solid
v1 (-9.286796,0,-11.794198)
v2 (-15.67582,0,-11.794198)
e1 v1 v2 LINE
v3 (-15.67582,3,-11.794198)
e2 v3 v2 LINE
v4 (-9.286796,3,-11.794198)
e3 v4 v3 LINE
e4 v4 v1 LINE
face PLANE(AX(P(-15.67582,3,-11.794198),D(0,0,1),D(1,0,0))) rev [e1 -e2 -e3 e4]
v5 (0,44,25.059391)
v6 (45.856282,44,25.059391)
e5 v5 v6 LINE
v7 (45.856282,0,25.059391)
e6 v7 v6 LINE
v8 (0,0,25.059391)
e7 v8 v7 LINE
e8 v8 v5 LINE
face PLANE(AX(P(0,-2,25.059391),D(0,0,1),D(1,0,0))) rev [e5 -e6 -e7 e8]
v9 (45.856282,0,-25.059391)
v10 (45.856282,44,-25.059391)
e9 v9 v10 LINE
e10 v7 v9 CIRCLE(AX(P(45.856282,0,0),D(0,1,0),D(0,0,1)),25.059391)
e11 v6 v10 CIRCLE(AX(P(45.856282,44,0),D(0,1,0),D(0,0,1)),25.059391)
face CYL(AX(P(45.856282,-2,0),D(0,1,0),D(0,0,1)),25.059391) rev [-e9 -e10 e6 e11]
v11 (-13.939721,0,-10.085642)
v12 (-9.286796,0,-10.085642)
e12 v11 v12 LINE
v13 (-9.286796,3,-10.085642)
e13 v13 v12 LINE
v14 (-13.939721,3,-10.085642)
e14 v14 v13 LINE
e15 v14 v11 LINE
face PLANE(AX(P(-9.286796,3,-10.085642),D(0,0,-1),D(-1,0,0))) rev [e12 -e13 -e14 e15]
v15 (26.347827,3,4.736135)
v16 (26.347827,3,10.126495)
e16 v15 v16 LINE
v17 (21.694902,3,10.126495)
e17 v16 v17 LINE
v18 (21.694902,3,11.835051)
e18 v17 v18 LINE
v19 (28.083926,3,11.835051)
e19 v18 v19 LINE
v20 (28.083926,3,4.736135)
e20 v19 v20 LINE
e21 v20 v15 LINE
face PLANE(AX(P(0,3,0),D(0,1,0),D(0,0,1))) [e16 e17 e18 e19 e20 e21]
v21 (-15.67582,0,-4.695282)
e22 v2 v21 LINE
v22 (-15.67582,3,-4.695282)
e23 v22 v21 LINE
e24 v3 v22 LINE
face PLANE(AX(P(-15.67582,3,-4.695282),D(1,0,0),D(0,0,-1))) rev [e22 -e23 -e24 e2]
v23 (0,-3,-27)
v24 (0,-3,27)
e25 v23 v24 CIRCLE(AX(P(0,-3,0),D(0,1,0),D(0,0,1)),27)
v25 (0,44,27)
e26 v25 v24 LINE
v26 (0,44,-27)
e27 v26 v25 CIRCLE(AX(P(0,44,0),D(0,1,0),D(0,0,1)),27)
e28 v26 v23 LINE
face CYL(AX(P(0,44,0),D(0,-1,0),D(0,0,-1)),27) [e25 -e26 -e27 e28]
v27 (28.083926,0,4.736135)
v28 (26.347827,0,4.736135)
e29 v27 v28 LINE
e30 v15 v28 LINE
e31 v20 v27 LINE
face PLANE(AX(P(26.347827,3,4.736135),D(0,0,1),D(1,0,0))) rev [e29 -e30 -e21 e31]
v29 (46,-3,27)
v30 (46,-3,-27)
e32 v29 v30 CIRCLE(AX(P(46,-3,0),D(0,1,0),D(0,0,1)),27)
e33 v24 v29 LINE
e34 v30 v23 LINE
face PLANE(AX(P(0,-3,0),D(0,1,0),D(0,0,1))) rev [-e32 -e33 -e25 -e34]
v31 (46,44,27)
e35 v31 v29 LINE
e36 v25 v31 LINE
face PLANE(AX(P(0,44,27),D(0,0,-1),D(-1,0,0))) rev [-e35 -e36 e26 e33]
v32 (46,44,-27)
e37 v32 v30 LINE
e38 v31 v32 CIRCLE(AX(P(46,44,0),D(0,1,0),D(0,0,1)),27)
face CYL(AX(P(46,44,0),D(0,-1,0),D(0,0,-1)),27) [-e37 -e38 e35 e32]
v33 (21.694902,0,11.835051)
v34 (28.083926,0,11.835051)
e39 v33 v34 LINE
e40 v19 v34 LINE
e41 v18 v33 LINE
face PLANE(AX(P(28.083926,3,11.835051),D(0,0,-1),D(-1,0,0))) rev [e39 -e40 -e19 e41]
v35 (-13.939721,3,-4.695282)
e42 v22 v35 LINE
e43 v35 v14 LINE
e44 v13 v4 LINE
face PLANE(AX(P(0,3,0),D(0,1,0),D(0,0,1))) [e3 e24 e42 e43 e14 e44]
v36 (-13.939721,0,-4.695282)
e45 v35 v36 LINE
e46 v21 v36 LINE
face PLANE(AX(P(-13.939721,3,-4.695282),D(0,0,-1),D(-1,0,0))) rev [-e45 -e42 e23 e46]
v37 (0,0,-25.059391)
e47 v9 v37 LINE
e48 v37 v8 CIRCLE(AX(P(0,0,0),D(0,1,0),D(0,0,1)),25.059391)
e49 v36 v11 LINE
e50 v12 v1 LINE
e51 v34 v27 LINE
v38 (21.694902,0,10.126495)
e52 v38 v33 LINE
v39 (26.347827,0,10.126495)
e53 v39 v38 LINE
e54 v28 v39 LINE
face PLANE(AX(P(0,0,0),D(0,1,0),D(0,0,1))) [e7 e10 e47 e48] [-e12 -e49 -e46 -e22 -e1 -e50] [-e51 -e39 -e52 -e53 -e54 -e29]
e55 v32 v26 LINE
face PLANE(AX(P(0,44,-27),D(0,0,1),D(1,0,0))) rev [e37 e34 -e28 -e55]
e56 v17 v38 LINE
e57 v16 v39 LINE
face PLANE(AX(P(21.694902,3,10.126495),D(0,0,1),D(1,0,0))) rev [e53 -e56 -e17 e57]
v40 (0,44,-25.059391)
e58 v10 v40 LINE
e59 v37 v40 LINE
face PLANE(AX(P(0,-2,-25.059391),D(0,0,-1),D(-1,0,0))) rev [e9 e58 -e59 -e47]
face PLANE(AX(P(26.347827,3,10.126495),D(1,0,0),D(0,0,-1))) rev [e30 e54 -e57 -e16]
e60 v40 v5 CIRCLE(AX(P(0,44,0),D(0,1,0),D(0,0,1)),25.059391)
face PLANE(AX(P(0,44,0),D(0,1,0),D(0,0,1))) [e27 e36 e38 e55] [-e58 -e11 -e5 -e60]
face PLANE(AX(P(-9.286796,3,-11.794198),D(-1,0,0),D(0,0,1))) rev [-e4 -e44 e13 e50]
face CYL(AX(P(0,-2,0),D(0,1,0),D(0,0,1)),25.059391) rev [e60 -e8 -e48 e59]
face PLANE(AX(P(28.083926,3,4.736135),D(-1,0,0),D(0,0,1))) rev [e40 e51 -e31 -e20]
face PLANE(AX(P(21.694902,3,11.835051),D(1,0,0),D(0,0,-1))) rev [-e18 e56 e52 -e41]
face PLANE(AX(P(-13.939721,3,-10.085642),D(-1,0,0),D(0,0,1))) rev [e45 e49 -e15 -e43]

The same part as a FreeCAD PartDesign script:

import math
import FreeCAD as App
import Part
import Sketcher

V = App.Vector
Q = App.Units.Quantity

doc = App.newDocument("Part")
params = doc.addObject("Spreadsheet::Sheet", "Params")
for row, (alias, value) in enumerate([
    ("sketch1_radius", "27 mm"),
    ("sketch1_width", "46 mm"),
    ("pad1_length", "44 mm"),
    ("sketch3_radius", "27 mm"),
    ("sketch3_width", "46 mm"),
    ("pad2_length", "3 mm"),
    ("pad3_length", "3 mm"),
], start=1):
    params.set(f"A{row}", alias)
    params.set(f"B{row}", "=" + value)
    params.setAlias(f"B{row}", alias)

body = doc.addObject("PartDesign::Body", "Body")

sketch1 = body.newObject("Sketcher::SketchObject", "Sketch")
sketch1.AttachmentSupport = (doc.getObject("XZ_Plane"), [""])
sketch1.MapMode = "FlatFace"
sketch1.addGeometry([
    Part.LineSegment(V(46, -27, 0), V(0, -27, 0)),
    Part.ArcOfCircle(Part.Circle(V(0, 0, 0), V(0, 0, 1), 27), math.radians(90), math.radians(270)),
    Part.LineSegment(V(0, 27, 0), V(46, 27, 0)),
    Part.ArcOfCircle(Part.Circle(V(46, 0, 0), V(0, 0, 1), 27), math.radians(-90), math.radians(90)),
], False)
sketch1.addConstraint([
    Sketcher.Constraint("Tangent", 0, 2, 1, 2),
    Sketcher.Constraint("Tangent", 1, 1, 2, 1),
    Sketcher.Constraint("Tangent", 2, 2, 3, 2),
    Sketcher.Constraint("Tangent", 3, 1, 0, 1),
    Sketcher.Constraint("Horizontal", 0),
    Sketcher.Constraint("Horizontal", 2),
    Sketcher.Constraint("Coincident", 1, 3, -1, 1),
    Sketcher.Constraint("Radius", 1, Q("27 mm")),
    Sketcher.Constraint("DistanceX", 0, 2, 0, 1, Q("46 mm")),
])
sketch1.setExpression("Constraints[7]", "Params.sketch1_radius")
sketch1.setExpression("Constraints[8]", "Params.sketch1_width")
pad1 = body.newObject("PartDesign::Pad", "Pad")
pad1.Profile = sketch1
pad1.setExpression("Length", "Params.pad1_length")
pad1.Reversed = True

sketch2 = body.newObject("Sketcher::SketchObject", "Sketch001")
sketch2.AttachmentSupport = (doc.getObject("XZ_Plane"), [""])
sketch2.MapMode = "FlatFace"
sketch2.addGeometry([
    Part.LineSegment(V(46, -25, 0), V(0, -25, 0)),
    Part.ArcOfCircle(Part.Circle(V(0, 0, 0), V(0, 0, 1), 25), math.radians(90), math.radians(270)),
    Part.LineSegment(V(0, 25, 0), V(46, 25, 0)),
    Part.ArcOfCircle(Part.Circle(V(46, 0, 0), V(0, 0, 1), 25), math.radians(-90), math.radians(90)),
], False)
sketch2.addConstraint([
    Sketcher.Constraint("Tangent", 0, 2, 1, 2),
    Sketcher.Constraint("Tangent", 1, 1, 2, 1),
    Sketcher.Constraint("Tangent", 2, 2, 3, 2),
    Sketcher.Constraint("Tangent", 3, 1, 0, 1),
    Sketcher.Constraint("Horizontal", 0),
    Sketcher.Constraint("Horizontal", 2),
    Sketcher.Constraint("Coincident", 1, 3, -1, 1),
    Sketcher.Constraint("Radius", 1, Q("25.059391 mm")),
    Sketcher.Constraint("DistanceX", 0, 2, 0, 1, Q("45.856282 mm")),
])
pocket1 = body.newObject("PartDesign::Pocket", "Pocket")
pocket1.Profile = sketch2
pocket1.Type = "ThroughAll"
pocket1.Midplane = True

sketch3 = body.newObject("Sketcher::SketchObject", "Sketch002")
sketch3.AttachmentSupport = (doc.getObject("XZ_Plane"), [""])
sketch3.MapMode = "FlatFace"
sketch3.addGeometry([
    Part.LineSegment(V(46, -27, 0), V(0, -27, 0)),
    Part.ArcOfCircle(Part.Circle(V(0, 0, 0), V(0, 0, 1), 27), math.radians(90), math.radians(270)),
    Part.LineSegment(V(0, 27, 0), V(46, 27, 0)),
    Part.ArcOfCircle(Part.Circle(V(46, 0, 0), V(0, 0, 1), 27), math.radians(-90), math.radians(90)),
], False)
sketch3.addConstraint([
    Sketcher.Constraint("Tangent", 0, 2, 1, 2),
    Sketcher.Constraint("Tangent", 1, 1, 2, 1),
    Sketcher.Constraint("Tangent", 2, 2, 3, 2),
    Sketcher.Constraint("Tangent", 3, 1, 0, 1),
    Sketcher.Constraint("Horizontal", 0),
    Sketcher.Constraint("Horizontal", 2),
    Sketcher.Constraint("Coincident", 1, 3, -1, 1),
    Sketcher.Constraint("Radius", 1, Q("27 mm")),
    Sketcher.Constraint("DistanceX", 0, 2, 0, 1, Q("46 mm")),
])
sketch3.setExpression("Constraints[7]", "Params.sketch3_radius")
sketch3.setExpression("Constraints[8]", "Params.sketch3_width")
pad2 = body.newObject("PartDesign::Pad", "Pad001")
pad2.Profile = sketch3
pad2.setExpression("Length", "Params.pad2_length")

sketch4 = body.newObject("Sketcher::SketchObject", "Sketch003")
sketch4.AttachmentSupport = (doc.getObject("XZ_Plane"), [""])
sketch4.MapMode = "FlatFace"
sketch4.addGeometry([
    Part.LineSegment(V(-13.9, -4.7, 0), V(-13.9, -10.1, 0)),
    Part.LineSegment(V(-13.9, -10.1, 0), V(-9.3, -10.1, 0)),
    Part.LineSegment(V(-9.3, -10.1, 0), V(-9.3, -11.8, 0)),
    Part.LineSegment(V(-9.3, -11.8, 0), V(-15.7, -11.8, 0)),
    Part.LineSegment(V(-15.7, -11.8, 0), V(-15.7, -4.7, 0)),
    Part.LineSegment(V(-15.7, -4.7, 0), V(-13.9, -4.7, 0)),
    Part.LineSegment(V(26.3, 4.7, 0), V(26.3, 10.1, 0)),
    Part.LineSegment(V(26.3, 10.1, 0), V(21.7, 10.1, 0)),
    Part.LineSegment(V(21.7, 10.1, 0), V(21.7, 11.8, 0)),
    Part.LineSegment(V(21.7, 11.8, 0), V(28.1, 11.8, 0)),
    Part.LineSegment(V(28.1, 11.8, 0), V(28.1, 4.7, 0)),
    Part.LineSegment(V(28.1, 4.7, 0), V(26.3, 4.7, 0)),
], False)
sketch4.addConstraint([
    Sketcher.Constraint("Coincident", 0, 2, 1, 1),
    Sketcher.Constraint("Coincident", 1, 2, 2, 1),
    Sketcher.Constraint("Coincident", 2, 2, 3, 1),
    Sketcher.Constraint("Coincident", 3, 2, 4, 1),
    Sketcher.Constraint("Coincident", 4, 2, 5, 1),
    Sketcher.Constraint("Coincident", 5, 2, 0, 1),
    Sketcher.Constraint("Coincident", 6, 2, 7, 1),
    Sketcher.Constraint("Coincident", 7, 2, 8, 1),
    Sketcher.Constraint("Coincident", 8, 2, 9, 1),
    Sketcher.Constraint("Coincident", 9, 2, 10, 1),
    Sketcher.Constraint("Coincident", 10, 2, 11, 1),
    Sketcher.Constraint("Coincident", 11, 2, 6, 1),
    Sketcher.Constraint("Vertical", 0),
    Sketcher.Constraint("Horizontal", 1),
    Sketcher.Constraint("Vertical", 2),
    Sketcher.Constraint("Horizontal", 3),
    Sketcher.Constraint("Vertical", 4),
    Sketcher.Constraint("Horizontal", 5),
    Sketcher.Constraint("Vertical", 6),
    Sketcher.Constraint("Horizontal", 7),
    Sketcher.Constraint("Vertical", 8),
    Sketcher.Constraint("Horizontal", 9),
    Sketcher.Constraint("Vertical", 10),
    Sketcher.Constraint("Horizontal", 11),
    Sketcher.Constraint("Equal", 1, 7),
    Sketcher.Constraint("Equal", 3, 9),
    Sketcher.Constraint("Equal", 0, 6),
    Sketcher.Constraint("Equal", 2, 8),
    Sketcher.Constraint("DistanceX", 5, 1, 5, 2, Q("1.736099 mm")),
    Sketcher.Constraint("DistanceY", 0, 2, 0, 1, Q("5.39036 mm")),
    Sketcher.Constraint("DistanceX", -1, 1, 7, 2, Q("21.694902 mm")),
    Sketcher.Constraint("DistanceX", 1, 1, 1, 2, Q("4.652925 mm")),
    Sketcher.Constraint("DistanceY", 2, 2, 2, 1, Q("1.708556 mm")),
    Sketcher.Constraint("DistanceX", 0, 2, -1, 1, Q("13.939721 mm")),
    Sketcher.Constraint("DistanceY", 4, 2, -1, 1, Q("4.695282 mm")),
    Sketcher.Constraint("DistanceY", -1, 1, 8, 2, Q("11.835051 mm")),
])
pad3 = body.newObject("PartDesign::Pad", "Pad002")
pad3.Profile = sketch4
pad3.setExpression("Length", "Params.pad3_length")
pad3.Reversed = True

doc.recompute()
